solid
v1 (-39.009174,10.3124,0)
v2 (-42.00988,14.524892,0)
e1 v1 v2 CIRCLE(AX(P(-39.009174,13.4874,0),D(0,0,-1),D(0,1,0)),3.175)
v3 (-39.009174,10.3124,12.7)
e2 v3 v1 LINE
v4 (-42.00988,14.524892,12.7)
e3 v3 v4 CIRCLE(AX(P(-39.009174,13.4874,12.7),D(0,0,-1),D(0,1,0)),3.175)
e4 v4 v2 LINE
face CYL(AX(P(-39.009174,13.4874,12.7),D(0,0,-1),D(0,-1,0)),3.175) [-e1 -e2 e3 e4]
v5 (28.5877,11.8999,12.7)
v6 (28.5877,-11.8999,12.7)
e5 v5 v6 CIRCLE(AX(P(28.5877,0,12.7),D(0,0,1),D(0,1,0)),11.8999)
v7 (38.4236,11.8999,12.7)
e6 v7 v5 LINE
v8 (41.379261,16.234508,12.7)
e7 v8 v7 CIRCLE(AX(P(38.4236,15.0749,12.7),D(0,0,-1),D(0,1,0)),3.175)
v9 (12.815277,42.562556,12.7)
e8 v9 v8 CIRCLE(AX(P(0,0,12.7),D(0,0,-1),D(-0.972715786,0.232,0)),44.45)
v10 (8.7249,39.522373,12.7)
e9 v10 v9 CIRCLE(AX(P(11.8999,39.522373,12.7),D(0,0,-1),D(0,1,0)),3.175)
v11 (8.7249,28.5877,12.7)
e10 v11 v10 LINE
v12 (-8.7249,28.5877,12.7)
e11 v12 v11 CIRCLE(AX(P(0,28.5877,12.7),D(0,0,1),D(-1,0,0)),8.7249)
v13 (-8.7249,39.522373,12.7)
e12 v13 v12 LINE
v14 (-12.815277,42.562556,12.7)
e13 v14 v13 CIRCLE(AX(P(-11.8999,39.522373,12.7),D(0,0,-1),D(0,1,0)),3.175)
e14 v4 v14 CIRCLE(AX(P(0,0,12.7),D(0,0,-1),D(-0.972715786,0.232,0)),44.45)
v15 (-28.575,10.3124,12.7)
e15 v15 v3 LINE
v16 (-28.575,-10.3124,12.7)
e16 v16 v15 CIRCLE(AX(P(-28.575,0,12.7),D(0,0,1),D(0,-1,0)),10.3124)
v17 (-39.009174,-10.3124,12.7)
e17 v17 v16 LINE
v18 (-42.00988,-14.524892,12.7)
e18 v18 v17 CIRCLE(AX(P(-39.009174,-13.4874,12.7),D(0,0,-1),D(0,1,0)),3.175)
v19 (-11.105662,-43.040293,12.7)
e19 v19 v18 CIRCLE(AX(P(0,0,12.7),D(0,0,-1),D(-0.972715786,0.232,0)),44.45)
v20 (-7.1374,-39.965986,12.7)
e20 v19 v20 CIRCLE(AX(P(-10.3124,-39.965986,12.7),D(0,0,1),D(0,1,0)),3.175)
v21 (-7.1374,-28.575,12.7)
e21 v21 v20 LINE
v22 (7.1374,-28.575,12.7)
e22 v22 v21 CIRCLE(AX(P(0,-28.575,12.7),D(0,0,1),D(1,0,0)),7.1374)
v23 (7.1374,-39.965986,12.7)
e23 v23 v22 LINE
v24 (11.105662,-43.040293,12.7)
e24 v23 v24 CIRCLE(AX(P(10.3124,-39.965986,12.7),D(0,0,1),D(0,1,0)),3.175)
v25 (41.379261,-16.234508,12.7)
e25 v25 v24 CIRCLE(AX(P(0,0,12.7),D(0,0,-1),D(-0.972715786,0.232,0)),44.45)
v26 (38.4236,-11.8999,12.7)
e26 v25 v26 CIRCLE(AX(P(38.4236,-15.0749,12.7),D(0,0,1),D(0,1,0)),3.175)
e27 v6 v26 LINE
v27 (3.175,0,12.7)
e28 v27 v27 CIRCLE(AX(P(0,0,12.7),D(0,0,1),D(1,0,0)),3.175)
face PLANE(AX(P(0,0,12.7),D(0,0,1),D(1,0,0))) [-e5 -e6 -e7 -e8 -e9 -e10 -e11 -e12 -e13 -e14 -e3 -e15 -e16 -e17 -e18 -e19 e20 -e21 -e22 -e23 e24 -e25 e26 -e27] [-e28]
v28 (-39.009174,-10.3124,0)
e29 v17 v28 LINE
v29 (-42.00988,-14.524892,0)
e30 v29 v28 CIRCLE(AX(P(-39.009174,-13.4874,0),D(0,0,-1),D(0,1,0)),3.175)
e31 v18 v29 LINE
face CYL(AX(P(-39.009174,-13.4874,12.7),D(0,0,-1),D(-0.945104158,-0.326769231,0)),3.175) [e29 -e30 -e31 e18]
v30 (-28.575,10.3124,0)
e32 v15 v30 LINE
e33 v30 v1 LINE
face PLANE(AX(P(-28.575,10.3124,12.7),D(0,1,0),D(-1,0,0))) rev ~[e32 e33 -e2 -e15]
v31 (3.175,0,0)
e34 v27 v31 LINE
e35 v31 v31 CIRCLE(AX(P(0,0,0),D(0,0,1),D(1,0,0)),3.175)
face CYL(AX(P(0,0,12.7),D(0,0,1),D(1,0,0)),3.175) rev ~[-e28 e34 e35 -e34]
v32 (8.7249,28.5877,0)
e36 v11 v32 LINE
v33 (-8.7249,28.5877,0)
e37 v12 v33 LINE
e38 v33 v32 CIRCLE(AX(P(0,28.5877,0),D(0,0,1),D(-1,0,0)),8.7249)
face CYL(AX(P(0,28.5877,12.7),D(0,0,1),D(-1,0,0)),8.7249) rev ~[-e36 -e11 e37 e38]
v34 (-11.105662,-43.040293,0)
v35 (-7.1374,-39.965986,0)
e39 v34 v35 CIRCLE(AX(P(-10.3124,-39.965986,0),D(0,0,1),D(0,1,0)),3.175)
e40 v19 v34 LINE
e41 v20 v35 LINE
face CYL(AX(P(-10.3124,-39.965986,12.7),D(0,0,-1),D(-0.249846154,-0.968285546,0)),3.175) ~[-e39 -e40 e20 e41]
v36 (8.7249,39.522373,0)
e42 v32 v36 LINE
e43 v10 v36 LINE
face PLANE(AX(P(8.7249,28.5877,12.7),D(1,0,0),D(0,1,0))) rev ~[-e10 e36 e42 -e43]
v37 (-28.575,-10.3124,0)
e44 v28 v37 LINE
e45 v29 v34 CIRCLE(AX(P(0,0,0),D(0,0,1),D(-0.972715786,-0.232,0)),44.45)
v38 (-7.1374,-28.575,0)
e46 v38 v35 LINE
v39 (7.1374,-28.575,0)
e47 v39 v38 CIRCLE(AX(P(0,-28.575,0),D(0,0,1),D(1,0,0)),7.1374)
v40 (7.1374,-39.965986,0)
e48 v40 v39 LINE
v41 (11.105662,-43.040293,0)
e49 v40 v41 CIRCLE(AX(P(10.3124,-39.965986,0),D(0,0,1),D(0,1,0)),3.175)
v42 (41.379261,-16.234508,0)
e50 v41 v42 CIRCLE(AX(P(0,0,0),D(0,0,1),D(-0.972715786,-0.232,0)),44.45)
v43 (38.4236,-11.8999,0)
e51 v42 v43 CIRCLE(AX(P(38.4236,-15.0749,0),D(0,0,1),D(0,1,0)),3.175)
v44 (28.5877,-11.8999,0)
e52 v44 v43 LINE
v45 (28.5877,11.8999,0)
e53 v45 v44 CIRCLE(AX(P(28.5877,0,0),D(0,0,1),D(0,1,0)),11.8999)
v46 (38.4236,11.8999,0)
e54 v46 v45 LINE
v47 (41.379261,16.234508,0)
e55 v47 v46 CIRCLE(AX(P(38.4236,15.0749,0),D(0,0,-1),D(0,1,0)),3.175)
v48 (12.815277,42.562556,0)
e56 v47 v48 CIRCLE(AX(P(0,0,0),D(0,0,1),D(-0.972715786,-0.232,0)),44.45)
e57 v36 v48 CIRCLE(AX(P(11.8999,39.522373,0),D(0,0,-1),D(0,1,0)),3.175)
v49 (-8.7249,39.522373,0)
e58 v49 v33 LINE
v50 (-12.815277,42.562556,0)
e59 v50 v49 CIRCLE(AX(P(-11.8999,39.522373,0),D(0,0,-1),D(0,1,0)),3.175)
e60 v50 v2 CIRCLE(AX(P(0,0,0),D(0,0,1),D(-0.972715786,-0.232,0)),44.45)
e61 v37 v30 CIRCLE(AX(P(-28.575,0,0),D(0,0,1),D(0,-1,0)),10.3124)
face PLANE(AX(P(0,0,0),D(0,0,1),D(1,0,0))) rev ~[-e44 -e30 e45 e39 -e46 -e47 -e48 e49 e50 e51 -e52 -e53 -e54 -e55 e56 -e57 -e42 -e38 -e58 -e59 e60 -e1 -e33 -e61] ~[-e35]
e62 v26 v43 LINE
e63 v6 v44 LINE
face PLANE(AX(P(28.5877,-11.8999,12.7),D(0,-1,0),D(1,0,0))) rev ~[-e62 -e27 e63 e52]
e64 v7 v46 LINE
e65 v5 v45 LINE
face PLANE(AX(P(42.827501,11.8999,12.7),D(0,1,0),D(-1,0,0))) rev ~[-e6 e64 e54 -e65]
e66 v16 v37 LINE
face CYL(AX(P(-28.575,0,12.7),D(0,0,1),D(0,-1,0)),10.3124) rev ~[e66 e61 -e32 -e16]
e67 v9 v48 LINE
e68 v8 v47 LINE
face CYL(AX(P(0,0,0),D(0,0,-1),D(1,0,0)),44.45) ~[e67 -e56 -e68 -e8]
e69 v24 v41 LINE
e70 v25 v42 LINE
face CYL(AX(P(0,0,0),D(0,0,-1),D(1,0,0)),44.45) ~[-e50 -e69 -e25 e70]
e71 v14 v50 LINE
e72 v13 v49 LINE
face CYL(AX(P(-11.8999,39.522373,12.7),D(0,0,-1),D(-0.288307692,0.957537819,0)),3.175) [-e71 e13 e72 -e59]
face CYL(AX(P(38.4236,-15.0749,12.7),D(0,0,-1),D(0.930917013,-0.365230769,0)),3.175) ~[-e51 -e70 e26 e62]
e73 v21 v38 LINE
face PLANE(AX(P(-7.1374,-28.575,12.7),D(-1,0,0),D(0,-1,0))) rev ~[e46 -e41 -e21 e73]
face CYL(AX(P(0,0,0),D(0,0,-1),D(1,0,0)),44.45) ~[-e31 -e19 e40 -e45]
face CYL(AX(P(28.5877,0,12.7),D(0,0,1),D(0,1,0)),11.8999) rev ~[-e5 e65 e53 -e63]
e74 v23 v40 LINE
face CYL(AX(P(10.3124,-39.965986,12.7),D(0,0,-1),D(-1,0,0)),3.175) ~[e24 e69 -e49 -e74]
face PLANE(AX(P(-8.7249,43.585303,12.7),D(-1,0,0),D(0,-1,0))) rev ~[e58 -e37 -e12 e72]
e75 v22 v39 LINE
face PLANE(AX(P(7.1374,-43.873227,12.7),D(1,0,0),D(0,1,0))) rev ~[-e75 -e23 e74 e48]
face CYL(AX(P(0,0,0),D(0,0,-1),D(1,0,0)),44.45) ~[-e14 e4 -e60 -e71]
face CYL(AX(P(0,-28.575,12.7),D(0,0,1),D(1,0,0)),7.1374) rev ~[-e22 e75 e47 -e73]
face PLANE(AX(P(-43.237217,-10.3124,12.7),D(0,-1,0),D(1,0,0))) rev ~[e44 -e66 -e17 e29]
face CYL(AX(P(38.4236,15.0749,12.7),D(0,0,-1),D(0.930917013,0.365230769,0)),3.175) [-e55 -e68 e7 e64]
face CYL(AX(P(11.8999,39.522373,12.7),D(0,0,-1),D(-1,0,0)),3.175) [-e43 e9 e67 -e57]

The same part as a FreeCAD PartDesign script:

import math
import FreeCAD as App
import Part
import Sketcher
from FreeCAD import Vector
Q = App.Units.Quantity


def edges_at(feature, points):
    """Names of the edges that pass closest to the given points."""
    edges = feature.Shape.Edges
    near = lambda p: min(range(len(edges)), key=lambda i: edges[i].distToShape(Part.Vertex(*p))[0])
    return sorted({f"Edge{near(p) + 1}" for p in points})

doc = App.newDocument("Part")
body = doc.addObject("PartDesign::Body", "Body")

# Sketch on XY plane
sketch1 = body.newObject("Sketcher::SketchObject", "Sketch")
sketch1.AttachmentSupport = (doc.getObject("XY_Plane"), [""])
sketch1.MapMode = "FlatFace"
sketch1.addGeometry(Part.Circle(Vector(0, 0, 0), Vector(0, 0, 1), 44), False)
sketch1.addConstraint(Sketcher.Constraint("Coincident", 0, 3, -1, 1))
sketch1.addConstraint(Sketcher.Constraint("Diameter", 0, Q("3.5 in")))
pad1 = body.newObject("PartDesign::Pad", "Pad")
pad1.Profile = sketch1
pad1.Length = Q("0.5 in")

# Sketch on XY plane
sketch2 = body.newObject("Sketcher::SketchObject", "Sketch001")
sketch2.AttachmentSupport = (doc.getObject("XY_Plane"), [""])
sketch2.MapMode = "FlatFace"
sketch2.AttachmentOffset = App.Placement(Vector(0, 0, 0.5 * 25.4), App.Rotation())
sketch2.addGeometry(Part.ArcOfCircle(Part.Circle(Vector(-29, 0, 0), Vector(0, 0, 1), 10), math.radians(-90), math.radians(90)), False)
sketch2.addGeometry(Part.LineSegment(Vector(-29, 10, 0), Vector(-43, 10, 0)), False)
sketch2.addGeometry(Part.ArcOfCircle(Part.Circle(Vector(0, 0, 0), Vector(0, 0, 1), 44), math.radians(167), math.radians(193)), False)
sketch2.addGeometry(Part.LineSegment(Vector(-43, -10, 0), Vector(-29, -10, 0)), False)
sketch2.addConstraint(Sketcher.Constraint("Tangent", 0, 2, 1, 1))
sketch2.addConstraint(Sketcher.Constraint("Coincident", 1, 2, 2, 1))
sketch2.addConstraint(Sketcher.Constraint("Coincident", 2, 2, 3, 1))
sketch2.addConstraint(Sketcher.Constraint("Tangent", 3, 2, 0, 1))
sketch2.addConstraint(Sketcher.Constraint("Horizontal", 1))
sketch2.addConstraint(Sketcher.Constraint("Horizontal", 3))
sketch2.addConstraint(Sketcher.Constraint("Coincident", 2, 3, -1, 1))
sketch2.addConstraint(Sketcher.Constraint("PointOnObject", 0, 3, -1))
sketch2.addConstraint(Sketcher.Constraint("Radius", 2, Q("1.75 in")))
sketch2.addConstraint(Sketcher.Constraint("Radius", 0, Q("0.406 in")))
sketch2.addConstraint(Sketcher.Constraint("DistanceX", 0, 3, -1, 1, Q("1.125 in")))
pocket1 = body.newObject("PartDesign::Pocket", "Pocket")
pocket1.Profile = sketch2
pocket1.Length = Q("0.5 in")

# Sketch on XY plane
sketch3 = body.newObject("Sketcher::SketchObject", "Sketch002")
sketch3.AttachmentSupport = (doc.getObject("XY_Plane"), [""])
sketch3.MapMode = "FlatFace"
sketch3.AttachmentOffset = App.Placement(Vector(0, 0, 0.5 * 25.4), App.Rotation())
sketch3.addGeometry(Part.LineSegment(Vector(43, 12, 0), Vector(29, 12, 0)), False)
sketch3.addGeometry(Part.ArcOfCircle(Part.Circle(Vector(29, 0, 0), Vector(0, 0, 1), 12), math.radians(90), math.radians(270)), False)
sketch3.addGeometry(Part.LineSegment(Vector(29, -12, 0), Vector(43, -12, 0)), False)
sketch3.addGeometry(Part.ArcOfCircle(Part.Circle(Vector(0, 0, 0), Vector(0, 0, 1), 44), math.radians(-16), math.radians(16)), False)
sketch3.addConstraint(Sketcher.Constraint("Tangent", 0, 2, 1, 1))
sketch3.addConstraint(Sketcher.Constraint("Tangent", 1, 2, 2, 1))
sketch3.addConstraint(Sketcher.Constraint("Coincident", 2, 2, 3, 1))
sketch3.addConstraint(Sketcher.Constraint("Coincident", 3, 2, 0, 1))
sketch3.addConstraint(Sketcher.Constraint("Horizontal", 0))
sketch3.addConstraint(Sketcher.Constraint("Horizontal", 2))
sketch3.addConstraint(Sketcher.Constraint("Coincident", 3, 3, -1, 1))
sketch3.addConstraint(Sketcher.Constraint("PointOnObject", 1, 3, -1))
sketch3.addConstraint(Sketcher.Constraint("Radius", 3, Q("1.75 in")))
sketch3.addConstraint(Sketcher.Constraint("Radius", 1, Q("0.4685 in")))
sketch3.addConstraint(Sketcher.Constraint("DistanceX", 0, 2, 0, 1, 14.239801))
pocket2 = body.newObject("PartDesign::Pocket", "Pocket001")
pocket2.Profile = sketch3
pocket2.Length = Q("0.5 in")

# Sketch on XY plane
sketch4 = body.newObject("Sketcher::SketchObject", "Sketch003")
sketch4.AttachmentSupport = (doc.getObject("XY_Plane"), [""])
sketch4.MapMode = "FlatFace"
sketch4.AttachmentOffset = App.Placement(Vector(0, 0, 0.5 * 25.4), App.Rotation())
sketch4.addGeometry(Part.LineSegment(Vector(-9, 44, 0), Vector(-9, 29, 0)), False)
sketch4.addGeometry(Part.ArcOfCircle(Part.Circle(Vector(0, 29, 0), Vector(0, 0, 1), 9), math.radians(180), math.radians(360)), False)
sketch4.addGeometry(Part.LineSegment(Vector(9, 29, 0), Vector(9, 44, 0)), False)
sketch4.addGeometry(Part.ArcOfCircle(Part.Circle(Vector(0, 0, 0), Vector(0, 0, 1), 44), math.radians(79), math.radians(101)), False)
sketch4.addConstraint(Sketcher.Constraint("Tangent", 0, 2, 1, 1))
sketch4.addConstraint(Sketcher.Constraint("Tangent", 1, 2, 2, 1))
sketch4.addConstraint(Sketcher.Constraint("Coincident", 2, 2, 3, 1))
sketch4.addConstraint(Sketcher.Constraint("Coincident", 3, 2, 0, 1))
sketch4.addConstraint(Sketcher.Constraint("Vertical", 0))
sketch4.addConstraint(Sketcher.Constraint("Vertical", 2))
sketch4.addConstraint(Sketcher.Constraint("Coincident", 3, 3, -1, 1))
sketch4.addConstraint(Sketcher.Constraint("PointOnObject", 1, 3, -2))
sketch4.addConstraint(Sketcher.Constraint("Radius", 3, Q("1.75 in")))
sketch4.addConstraint(Sketcher.Constraint("Radius", 1, Q("0.3435 in")))
sketch4.addConstraint(Sketcher.Constraint("DistanceY", -1, 1, 1, 3, Q("1.1255 in")))
pocket3 = body.newObject("PartDesign::Pocket", "Pocket002")
pocket3.Profile = sketch4
pocket3.Length = Q("1 in")

# Sketch on XY plane
sketch5 = body.newObject("Sketcher::SketchObject", "Sketch004")
sketch5.AttachmentSupport = (doc.getObject("XY_Plane"), [""])
sketch5.MapMode = "FlatFace"
sketch5.AttachmentOffset = App.Placement(Vector(0, 0, 0.5 * 25.4), App.Rotation())
sketch5.addGeometry(Part.ArcOfCircle(Part.Circle(Vector(0, -29, 0), Vector(0, 0, 1), 7), math.radians(0), math.radians(180)), False)
sketch5.addGeometry(Part.LineSegment(Vector(-7, -29, 0), Vector(-7, -44, 0)), False)
sketch5.addGeometry(Part.ArcOfCircle(Part.Circle(Vector(0, 0, 0), Vector(0, 0, 1), 44), math.radians(-99.24), math.radians(-80.76)), False)
sketch5.addGeometry(Part.LineSegment(Vector(7, -44, 0), Vector(7, -29, 0)), False)
sketch5.addConstraint(Sketcher.Constraint("Tangent", 0, 2, 1, 1))
sketch5.addConstraint(Sketcher.Constraint("Coincident", 1, 2, 2, 1))
sketch5.addConstraint(Sketcher.Constraint("Coincident", 2, 2, 3, 1))
sketch5.addConstraint(Sketcher.Constraint("Tangent", 3, 2, 0, 1))
sketch5.addConstraint(Sketcher.Constraint("Vertical", 1))
sketch5.addConstraint(Sketcher.Constraint("Vertical", 3))
sketch5.addConstraint(Sketcher.Constraint("Coincident", 2, 3, -1, 1))
sketch5.addConstraint(Sketcher.Constraint("PointOnObject", 0, 3, -2))
sketch5.addConstraint(Sketcher.Constraint("Radius", 2, Q("1.75 in")))
sketch5.addConstraint(Sketcher.Constraint("Radius", 0, Q("0.281 in")))
sketch5.addConstraint(Sketcher.Constraint("DistanceY", 0, 3, -1, 1, Q("1.125 in")))
pocket4 = body.newObject("PartDesign::Pocket", "Pocket003")
pocket4.Profile = sketch5
pocket4.Length = Q("0.5 in")

# Sketch on XY plane
sketch6 = body.newObject("Sketcher::SketchObject", "Sketch005")
sketch6.AttachmentSupport = (doc.getObject("XY_Plane"), [""])
sketch6.MapMode = "FlatFace"
sketch6.AttachmentOffset = App.Placement(Vector(0, 0, 0.5 * 25.4), App.Rotation())
sketch6.addGeometry(Part.Circle(Vector(0, 0, 0), Vector(0, 0, 1), 3.2), False)
sketch6.addConstraint(Sketcher.Constraint("Coincident", 0, 3, -1, 1))
sketch6.addConstraint(Sketcher.Constraint("Diameter", 0, Q("0.25 in")))
pocket5 = body.newObject("PartDesign::Pocket", "Pocket004")
pocket5.Profile = sketch6
pocket5.Type = "ThroughAll"
doc.recompute()

fillet = body.newObject("PartDesign::Fillet", "Fillet")
fillet.Base = (pocket5, edges_at(pocket5, [
    (42.828, -11.9, 6.35),
    (42.828, 11.9, 6.35),
    (8.725, 43.585, 6.35),
    (-8.725, 43.585, 6.35),
    (7.137, -43.873, 6.35),
    (-7.137, -43.873, 6.35),
    (-43.237, -10.312, 6.35),
    (-43.237, 10.312, 6.35),
]))
fillet.Radius = Q("0.125 in")

doc.recompute()
